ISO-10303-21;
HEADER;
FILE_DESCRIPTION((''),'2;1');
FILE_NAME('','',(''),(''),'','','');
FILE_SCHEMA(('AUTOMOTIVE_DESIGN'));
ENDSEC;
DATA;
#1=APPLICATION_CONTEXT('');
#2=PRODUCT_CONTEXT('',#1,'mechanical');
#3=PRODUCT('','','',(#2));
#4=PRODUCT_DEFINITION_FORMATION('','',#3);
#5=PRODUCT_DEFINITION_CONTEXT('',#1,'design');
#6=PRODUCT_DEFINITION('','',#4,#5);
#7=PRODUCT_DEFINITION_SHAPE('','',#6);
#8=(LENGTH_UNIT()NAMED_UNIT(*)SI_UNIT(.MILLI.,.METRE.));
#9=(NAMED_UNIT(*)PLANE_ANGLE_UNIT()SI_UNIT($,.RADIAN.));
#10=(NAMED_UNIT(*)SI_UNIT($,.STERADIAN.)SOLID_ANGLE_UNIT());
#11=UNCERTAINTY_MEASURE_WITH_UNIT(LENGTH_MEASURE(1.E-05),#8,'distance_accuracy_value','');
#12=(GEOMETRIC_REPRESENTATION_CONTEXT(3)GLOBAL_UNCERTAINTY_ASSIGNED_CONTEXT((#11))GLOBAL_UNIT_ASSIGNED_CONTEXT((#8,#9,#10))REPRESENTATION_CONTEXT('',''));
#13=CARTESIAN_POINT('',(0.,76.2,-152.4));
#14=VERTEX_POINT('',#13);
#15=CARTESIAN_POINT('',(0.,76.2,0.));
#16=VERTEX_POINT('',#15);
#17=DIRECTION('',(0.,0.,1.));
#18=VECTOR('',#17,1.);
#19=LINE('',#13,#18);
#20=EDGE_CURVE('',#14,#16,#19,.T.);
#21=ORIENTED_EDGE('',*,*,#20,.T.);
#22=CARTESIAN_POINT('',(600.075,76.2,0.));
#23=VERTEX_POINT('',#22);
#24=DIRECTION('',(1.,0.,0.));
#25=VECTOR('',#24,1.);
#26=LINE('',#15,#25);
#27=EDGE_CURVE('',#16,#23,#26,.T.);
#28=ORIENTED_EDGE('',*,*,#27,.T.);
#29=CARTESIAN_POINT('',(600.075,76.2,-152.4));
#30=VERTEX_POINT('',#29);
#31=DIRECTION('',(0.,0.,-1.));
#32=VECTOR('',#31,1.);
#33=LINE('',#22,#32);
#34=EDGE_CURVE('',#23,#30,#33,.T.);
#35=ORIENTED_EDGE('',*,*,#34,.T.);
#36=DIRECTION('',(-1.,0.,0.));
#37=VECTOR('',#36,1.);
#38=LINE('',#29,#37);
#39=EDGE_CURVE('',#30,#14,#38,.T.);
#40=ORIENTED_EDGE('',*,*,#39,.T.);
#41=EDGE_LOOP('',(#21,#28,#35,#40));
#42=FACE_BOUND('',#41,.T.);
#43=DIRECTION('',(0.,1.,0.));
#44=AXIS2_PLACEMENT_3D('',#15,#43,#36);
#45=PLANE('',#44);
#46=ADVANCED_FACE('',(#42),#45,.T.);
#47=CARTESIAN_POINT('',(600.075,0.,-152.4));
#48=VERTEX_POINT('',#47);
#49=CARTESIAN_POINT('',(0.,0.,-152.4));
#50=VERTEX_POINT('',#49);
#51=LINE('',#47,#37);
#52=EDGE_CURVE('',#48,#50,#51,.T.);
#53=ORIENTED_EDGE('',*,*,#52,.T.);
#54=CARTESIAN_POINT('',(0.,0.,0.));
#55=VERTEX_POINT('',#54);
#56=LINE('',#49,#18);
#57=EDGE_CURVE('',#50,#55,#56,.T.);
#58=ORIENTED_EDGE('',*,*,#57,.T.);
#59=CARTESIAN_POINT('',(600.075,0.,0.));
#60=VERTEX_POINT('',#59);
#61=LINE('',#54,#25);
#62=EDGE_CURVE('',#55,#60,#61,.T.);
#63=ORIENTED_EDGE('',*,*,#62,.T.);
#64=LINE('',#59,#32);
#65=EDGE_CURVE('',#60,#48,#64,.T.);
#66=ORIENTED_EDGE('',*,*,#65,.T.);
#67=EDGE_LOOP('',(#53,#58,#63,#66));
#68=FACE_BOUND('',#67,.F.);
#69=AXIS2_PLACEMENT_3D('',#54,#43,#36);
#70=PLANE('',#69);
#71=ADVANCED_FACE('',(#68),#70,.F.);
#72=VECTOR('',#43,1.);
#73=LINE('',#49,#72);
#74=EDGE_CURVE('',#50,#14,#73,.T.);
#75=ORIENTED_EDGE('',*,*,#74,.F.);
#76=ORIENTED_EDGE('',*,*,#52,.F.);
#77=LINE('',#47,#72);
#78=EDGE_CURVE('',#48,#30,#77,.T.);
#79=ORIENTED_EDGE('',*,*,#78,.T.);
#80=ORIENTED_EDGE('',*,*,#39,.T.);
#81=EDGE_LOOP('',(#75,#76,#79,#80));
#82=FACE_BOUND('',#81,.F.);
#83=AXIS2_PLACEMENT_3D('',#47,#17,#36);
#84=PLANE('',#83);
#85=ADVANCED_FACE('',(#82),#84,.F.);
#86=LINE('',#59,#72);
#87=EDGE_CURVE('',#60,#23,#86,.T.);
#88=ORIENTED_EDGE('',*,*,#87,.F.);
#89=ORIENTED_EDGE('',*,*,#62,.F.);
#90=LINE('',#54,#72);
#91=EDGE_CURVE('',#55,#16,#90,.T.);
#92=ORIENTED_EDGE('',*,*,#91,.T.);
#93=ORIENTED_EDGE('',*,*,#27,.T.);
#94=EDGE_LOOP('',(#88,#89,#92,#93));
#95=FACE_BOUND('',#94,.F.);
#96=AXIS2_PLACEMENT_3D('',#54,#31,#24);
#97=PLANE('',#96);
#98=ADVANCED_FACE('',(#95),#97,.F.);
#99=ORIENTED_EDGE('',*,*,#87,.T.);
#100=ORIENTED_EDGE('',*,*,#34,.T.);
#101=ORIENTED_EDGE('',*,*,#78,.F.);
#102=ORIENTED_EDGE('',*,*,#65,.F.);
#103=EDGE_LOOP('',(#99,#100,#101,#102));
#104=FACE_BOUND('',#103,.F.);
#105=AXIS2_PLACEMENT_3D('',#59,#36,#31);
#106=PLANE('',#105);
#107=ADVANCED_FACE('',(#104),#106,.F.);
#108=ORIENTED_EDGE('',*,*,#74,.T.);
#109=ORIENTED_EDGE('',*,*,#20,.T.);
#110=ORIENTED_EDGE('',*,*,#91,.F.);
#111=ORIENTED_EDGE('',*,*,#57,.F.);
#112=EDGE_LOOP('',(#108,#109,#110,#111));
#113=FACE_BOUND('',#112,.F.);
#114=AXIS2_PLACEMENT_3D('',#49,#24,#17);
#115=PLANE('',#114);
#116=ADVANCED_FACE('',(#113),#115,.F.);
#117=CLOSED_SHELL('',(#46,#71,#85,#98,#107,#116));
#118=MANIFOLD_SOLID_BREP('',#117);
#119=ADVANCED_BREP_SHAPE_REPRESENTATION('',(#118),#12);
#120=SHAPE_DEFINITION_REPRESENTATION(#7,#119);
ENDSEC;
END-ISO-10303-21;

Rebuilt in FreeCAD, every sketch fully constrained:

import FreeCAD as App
import Part
import Sketcher
Q = App.Units.Quantity

doc = App.newDocument("Part")
body = doc.addObject("PartDesign::Body", "Body")

# Sketch on XZ plane
sketch1 = body.newObject("Sketcher::SketchObject", "Sketch")
sketch1.AttachmentSupport = (doc.getObject("XZ_Plane"), [""])
sketch1.MapMode = "FlatFace"
sketch1.addGeometry(Part.LineSegment(App.Vector(0, -152, 0), App.Vector(0, 0, 0)), False)
sketch1.addGeometry(Part.LineSegment(App.Vector(0, 0, 0), App.Vector(600, 0, 0)), False)
sketch1.addGeometry(Part.LineSegment(App.Vector(600, 0, 0), App.Vector(600, -152, 0)), False)
sketch1.addGeometry(Part.LineSegment(App.Vector(600, -152, 0), App.Vector(0, -152, 0)), False)
sketch1.addConstraint(Sketcher.Constraint("Coincident", 0, 2, 1, 1))
sketch1.addConstraint(Sketcher.Constraint("Coincident", 1, 2, 2, 1))
sketch1.addConstraint(Sketcher.Constraint("Coincident", 2, 2, 3, 1))
sketch1.addConstraint(Sketcher.Constraint("Coincident", 3, 2, 0, 1))
sketch1.addConstraint(Sketcher.Constraint("Vertical", 0))
sketch1.addConstraint(Sketcher.Constraint("Horizontal", 1))
sketch1.addConstraint(Sketcher.Constraint("Vertical", 2))
sketch1.addConstraint(Sketcher.Constraint("Horizontal", 3))
sketch1.addConstraint(Sketcher.Constraint("Coincident", 0, 2, -1, 1))
sketch1.addConstraint(Sketcher.Constraint("DistanceY", 0, 1, 0, 2, Q("6 in")))
sketch1.addConstraint(Sketcher.Constraint("DistanceX", 1, 1, 1, 2, Q("23.625 in")))
pad1 = body.newObject("PartDesign::Pad", "Pad")
pad1.Profile = sketch1
pad1.Length = Q("3 in")
pad1.Reversed = True

doc.recompute()
